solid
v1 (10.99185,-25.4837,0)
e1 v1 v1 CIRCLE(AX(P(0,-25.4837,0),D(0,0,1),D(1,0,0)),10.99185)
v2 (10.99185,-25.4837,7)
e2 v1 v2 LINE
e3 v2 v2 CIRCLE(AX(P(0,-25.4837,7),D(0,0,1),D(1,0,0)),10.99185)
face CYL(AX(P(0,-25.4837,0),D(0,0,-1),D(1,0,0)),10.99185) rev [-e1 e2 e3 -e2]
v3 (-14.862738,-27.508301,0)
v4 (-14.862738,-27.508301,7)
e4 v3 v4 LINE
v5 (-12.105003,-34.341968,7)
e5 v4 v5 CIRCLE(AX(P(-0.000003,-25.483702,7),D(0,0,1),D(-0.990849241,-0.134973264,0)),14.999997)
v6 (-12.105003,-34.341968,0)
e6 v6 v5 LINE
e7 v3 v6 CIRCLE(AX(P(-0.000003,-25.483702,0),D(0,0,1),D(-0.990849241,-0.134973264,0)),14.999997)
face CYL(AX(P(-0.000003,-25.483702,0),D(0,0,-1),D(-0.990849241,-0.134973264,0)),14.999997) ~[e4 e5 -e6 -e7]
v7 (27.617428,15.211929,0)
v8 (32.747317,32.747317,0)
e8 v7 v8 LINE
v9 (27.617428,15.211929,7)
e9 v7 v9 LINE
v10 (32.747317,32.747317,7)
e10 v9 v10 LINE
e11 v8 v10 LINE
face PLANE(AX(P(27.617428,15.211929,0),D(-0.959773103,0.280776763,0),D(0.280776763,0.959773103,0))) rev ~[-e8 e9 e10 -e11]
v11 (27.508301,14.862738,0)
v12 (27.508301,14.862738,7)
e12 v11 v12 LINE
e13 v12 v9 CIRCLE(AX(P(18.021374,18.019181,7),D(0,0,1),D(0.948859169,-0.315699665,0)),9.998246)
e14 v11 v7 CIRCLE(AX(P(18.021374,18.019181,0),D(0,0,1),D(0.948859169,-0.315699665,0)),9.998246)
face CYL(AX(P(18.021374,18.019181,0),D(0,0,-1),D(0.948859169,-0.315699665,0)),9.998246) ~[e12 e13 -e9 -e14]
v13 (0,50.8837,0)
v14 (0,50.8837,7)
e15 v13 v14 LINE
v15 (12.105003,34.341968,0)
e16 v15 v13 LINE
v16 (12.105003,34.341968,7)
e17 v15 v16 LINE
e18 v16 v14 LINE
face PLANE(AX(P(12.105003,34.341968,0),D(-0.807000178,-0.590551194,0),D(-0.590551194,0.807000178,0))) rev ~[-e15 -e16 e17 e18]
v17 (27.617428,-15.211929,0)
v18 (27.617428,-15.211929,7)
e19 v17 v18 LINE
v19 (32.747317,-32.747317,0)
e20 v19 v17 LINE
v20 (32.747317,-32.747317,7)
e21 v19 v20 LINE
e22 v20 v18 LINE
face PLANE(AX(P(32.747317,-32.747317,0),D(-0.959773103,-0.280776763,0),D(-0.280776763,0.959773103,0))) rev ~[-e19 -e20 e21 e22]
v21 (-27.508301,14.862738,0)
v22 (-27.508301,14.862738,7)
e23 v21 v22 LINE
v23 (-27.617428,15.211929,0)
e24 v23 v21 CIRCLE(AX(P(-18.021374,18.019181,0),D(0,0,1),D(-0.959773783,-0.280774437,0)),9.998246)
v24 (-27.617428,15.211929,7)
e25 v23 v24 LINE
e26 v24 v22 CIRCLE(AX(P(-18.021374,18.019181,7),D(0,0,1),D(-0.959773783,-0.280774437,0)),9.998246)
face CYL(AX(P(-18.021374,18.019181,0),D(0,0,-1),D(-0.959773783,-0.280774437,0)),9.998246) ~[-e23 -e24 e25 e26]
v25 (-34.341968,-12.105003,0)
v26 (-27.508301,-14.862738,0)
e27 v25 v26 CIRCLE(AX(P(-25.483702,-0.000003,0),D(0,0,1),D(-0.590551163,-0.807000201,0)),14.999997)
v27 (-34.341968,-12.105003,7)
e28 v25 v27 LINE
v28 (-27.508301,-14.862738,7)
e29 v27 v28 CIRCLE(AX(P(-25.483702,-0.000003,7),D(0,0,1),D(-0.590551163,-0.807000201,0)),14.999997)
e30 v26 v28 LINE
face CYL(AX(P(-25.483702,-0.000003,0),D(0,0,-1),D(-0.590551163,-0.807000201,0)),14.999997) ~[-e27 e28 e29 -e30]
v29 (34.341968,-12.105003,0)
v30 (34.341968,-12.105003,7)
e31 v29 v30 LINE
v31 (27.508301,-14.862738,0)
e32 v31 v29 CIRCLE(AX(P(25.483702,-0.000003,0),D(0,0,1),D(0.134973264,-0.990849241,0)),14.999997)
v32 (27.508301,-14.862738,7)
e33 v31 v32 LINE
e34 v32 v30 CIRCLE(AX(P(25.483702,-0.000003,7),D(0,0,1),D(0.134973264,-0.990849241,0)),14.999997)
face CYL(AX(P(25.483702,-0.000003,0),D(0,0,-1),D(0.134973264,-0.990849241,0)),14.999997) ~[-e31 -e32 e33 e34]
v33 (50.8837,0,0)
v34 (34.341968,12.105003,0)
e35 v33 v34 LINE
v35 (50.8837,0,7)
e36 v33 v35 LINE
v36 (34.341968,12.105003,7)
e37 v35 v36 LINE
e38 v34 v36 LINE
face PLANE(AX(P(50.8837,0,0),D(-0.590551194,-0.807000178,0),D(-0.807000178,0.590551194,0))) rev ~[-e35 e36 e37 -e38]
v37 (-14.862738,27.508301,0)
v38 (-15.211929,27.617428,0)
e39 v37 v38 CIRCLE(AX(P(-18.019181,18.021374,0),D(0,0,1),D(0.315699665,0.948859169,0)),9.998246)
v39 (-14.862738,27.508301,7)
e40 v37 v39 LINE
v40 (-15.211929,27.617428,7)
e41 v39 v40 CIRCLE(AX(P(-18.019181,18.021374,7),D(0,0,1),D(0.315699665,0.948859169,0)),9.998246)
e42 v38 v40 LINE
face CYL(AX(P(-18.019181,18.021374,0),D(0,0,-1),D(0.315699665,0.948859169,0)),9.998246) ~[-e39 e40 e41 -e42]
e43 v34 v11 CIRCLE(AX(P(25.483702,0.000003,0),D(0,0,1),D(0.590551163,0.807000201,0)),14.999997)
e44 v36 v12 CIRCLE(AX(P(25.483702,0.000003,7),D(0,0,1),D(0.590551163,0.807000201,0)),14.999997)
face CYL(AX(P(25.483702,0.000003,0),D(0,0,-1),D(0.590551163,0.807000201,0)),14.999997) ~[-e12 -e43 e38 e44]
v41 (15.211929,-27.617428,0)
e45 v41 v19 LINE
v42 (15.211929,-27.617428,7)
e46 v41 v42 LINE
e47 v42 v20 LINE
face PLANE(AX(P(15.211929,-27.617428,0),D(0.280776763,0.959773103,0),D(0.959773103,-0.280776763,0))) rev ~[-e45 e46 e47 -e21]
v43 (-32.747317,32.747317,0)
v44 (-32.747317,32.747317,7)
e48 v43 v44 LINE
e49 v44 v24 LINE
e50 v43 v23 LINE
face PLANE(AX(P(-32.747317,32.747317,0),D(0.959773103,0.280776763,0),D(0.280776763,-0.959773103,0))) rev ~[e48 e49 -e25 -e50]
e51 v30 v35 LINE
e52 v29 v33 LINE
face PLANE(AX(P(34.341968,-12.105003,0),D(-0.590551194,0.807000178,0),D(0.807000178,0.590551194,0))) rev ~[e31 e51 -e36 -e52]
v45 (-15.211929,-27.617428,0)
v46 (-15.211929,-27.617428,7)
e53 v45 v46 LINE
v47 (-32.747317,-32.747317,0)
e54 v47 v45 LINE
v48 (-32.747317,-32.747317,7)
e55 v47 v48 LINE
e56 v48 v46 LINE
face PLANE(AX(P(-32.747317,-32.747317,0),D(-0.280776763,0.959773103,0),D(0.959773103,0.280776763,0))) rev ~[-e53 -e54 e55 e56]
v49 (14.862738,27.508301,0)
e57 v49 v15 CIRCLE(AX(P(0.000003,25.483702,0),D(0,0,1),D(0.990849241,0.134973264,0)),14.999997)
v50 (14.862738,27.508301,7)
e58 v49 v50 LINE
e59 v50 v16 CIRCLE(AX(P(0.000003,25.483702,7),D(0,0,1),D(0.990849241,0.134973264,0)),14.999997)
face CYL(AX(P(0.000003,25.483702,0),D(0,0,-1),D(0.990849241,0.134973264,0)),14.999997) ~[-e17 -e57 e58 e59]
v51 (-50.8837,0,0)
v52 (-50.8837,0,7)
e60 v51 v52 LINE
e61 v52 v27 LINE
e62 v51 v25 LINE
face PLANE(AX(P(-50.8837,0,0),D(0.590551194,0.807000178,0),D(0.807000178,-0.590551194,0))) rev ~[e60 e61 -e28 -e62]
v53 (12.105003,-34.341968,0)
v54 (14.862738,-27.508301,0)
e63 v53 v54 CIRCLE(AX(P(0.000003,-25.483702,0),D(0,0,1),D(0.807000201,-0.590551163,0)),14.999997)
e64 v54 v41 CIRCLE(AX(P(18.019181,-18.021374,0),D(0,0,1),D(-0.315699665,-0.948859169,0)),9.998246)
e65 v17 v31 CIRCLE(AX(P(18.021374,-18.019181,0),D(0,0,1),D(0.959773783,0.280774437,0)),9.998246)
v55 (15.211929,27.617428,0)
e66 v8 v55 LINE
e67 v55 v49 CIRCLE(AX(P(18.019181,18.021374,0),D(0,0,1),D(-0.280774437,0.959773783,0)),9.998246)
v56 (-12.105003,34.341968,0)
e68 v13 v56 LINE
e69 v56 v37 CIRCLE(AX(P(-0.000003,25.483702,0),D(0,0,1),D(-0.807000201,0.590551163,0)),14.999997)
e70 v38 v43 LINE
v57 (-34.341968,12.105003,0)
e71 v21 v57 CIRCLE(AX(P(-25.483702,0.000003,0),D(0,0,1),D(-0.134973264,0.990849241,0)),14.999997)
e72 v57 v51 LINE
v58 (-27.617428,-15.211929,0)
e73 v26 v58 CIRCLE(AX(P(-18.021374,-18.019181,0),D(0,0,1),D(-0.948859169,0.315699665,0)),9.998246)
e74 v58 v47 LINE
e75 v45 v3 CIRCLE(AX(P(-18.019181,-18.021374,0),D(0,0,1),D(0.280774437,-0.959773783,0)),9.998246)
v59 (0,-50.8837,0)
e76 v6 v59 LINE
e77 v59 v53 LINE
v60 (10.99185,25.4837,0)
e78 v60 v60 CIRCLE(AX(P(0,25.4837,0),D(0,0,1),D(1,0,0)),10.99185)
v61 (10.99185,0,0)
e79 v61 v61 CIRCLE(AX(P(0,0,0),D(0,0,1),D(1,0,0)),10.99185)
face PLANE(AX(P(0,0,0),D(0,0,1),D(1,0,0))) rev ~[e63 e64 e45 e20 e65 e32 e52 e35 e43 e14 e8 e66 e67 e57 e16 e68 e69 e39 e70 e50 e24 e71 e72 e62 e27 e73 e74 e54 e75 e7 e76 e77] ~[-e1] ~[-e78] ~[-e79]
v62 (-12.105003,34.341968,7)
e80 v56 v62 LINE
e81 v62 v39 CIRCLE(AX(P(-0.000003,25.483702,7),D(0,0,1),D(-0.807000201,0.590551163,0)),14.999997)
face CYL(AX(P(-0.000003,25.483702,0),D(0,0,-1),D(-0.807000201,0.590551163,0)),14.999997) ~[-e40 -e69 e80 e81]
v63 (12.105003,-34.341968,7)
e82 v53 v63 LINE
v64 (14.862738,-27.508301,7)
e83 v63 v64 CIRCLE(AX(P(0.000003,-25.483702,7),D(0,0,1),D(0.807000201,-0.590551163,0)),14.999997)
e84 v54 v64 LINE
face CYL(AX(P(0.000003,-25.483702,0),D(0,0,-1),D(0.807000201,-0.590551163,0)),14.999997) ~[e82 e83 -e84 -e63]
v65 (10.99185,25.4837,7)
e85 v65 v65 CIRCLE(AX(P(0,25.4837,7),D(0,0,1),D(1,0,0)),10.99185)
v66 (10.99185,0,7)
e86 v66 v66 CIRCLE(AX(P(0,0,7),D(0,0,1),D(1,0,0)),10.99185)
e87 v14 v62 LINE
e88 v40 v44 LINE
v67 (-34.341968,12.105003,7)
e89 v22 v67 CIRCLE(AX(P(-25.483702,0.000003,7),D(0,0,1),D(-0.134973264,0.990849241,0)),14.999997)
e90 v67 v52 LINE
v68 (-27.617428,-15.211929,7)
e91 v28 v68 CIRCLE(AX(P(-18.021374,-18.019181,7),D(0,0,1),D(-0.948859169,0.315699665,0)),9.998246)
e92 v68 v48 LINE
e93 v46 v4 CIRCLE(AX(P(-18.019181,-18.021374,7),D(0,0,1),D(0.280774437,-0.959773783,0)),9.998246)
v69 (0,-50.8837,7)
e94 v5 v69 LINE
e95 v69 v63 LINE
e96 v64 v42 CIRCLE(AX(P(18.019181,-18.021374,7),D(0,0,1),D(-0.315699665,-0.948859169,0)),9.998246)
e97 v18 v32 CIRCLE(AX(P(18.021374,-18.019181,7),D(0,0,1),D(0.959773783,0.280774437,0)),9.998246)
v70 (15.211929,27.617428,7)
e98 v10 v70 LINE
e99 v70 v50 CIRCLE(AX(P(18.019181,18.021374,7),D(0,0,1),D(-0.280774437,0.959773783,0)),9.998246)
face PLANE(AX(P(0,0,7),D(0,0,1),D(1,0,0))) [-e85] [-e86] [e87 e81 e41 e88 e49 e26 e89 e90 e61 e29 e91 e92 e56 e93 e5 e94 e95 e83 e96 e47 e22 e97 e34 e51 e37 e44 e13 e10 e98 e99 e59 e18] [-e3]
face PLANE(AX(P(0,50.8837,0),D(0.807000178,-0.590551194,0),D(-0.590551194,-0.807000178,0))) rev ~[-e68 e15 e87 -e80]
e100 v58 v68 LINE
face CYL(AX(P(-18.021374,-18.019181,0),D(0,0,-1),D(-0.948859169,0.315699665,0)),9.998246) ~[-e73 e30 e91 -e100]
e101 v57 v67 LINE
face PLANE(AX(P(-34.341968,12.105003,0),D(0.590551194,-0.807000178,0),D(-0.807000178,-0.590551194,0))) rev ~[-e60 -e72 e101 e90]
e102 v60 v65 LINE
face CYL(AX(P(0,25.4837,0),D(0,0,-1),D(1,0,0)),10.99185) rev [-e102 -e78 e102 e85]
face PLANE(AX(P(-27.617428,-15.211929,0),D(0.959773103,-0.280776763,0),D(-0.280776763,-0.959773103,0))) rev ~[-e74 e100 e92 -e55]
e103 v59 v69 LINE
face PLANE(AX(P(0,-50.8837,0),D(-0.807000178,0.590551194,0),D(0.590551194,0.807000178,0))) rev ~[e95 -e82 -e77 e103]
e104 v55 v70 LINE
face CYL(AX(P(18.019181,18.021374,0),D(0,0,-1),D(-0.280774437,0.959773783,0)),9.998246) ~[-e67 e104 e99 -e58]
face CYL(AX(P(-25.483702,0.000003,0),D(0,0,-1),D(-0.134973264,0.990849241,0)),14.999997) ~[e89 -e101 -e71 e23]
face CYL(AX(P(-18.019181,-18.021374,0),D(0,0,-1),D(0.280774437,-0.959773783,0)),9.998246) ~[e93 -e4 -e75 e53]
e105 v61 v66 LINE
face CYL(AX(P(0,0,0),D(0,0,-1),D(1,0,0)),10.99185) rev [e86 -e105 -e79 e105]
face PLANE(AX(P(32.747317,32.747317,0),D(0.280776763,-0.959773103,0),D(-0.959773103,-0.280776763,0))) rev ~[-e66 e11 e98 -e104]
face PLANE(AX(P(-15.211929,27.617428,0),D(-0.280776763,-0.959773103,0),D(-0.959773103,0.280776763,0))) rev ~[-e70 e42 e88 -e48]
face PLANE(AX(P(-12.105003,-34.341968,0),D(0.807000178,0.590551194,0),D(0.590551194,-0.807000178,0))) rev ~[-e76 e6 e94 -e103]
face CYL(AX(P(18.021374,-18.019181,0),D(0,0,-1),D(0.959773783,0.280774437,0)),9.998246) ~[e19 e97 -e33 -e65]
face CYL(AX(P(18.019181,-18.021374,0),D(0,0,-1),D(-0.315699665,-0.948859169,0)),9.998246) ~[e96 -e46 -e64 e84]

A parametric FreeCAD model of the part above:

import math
import FreeCAD as App
import Part
import Sketcher
from FreeCAD import Vector

doc = App.newDocument("Part")
params = doc.addObject("Spreadsheet::Sheet", "Params")
for row, (alias, value) in enumerate([
    ("pad1_length", "7 mm"),
], start=1):
    params.set(f"A{row}", alias)
    params.set(f"B{row}", "=" + value)
    params.setAlias(f"B{row}", alias)

body = doc.addObject("PartDesign::Body", "Body")

# Sketch on XY plane
sketch1 = doc.addObject("Sketcher::SketchObject", "Sketch")
body.addObject(sketch1)
sketch1.AttachmentSupport = (doc.XY_Plane, [""])
sketch1.MapMode = "FlatFace"
sketch1.addGeometry(Part.ArcOfCircle(Part.Circle(Vector(18.019181, 18.021374, 0), Vector(0, 0, 1), 9.998246), math.radians(106.306431), math.radians(108.403057)), False)
sketch1.addGeometry(Part.ArcOfCircle(Part.Circle(Vector(0.000003, 25.483702, 0), Vector(0, 0, 1), 14.999997), math.radians(7.757074), math.radians(36.19613)), False)
sketch1.addGeometry(Part.LineSegment(Vector(12.105003, 34.341968, 0), Vector(0, 50.8837, 0)), False)
sketch1.addGeometry(Part.LineSegment(Vector(0, 50.8837, 0), Vector(-12.105003, 34.341968, 0)), False)
sketch1.addGeometry(Part.ArcOfCircle(Part.Circle(Vector(-0.000003, 25.483702, 0), Vector(0, 0, 1), 14.999997), math.radians(143.80387), math.radians(172.242926)), False)
sketch1.addGeometry(Part.ArcOfCircle(Part.Circle(Vector(-18.019181, 18.021374, 0), Vector(0, 0, 1), 9.998246), math.radians(71.596943), math.radians(73.693569)), False)
sketch1.addGeometry(Part.LineSegment(Vector(-15.211929, 27.617428, 0), Vector(-32.747317, 32.747317, 0)), False)
sketch1.addGeometry(Part.LineSegment(Vector(-32.747317, 32.747317, 0), Vector(-27.617428, 15.211929, 0)), False)
sketch1.addGeometry(Part.ArcOfCircle(Part.Circle(Vector(-18.021374, 18.019181, 0), Vector(0, 0, 1), 9.998246), math.radians(-163.693569), math.radians(-161.596943)), False)
sketch1.addGeometry(Part.ArcOfCircle(Part.Circle(Vector(-25.483702, 0.000003, 0), Vector(0, 0, 1), 14.999997), math.radians(97.757074), math.radians(126.19613)), False)
sketch1.addGeometry(Part.LineSegment(Vector(-34.341968, 12.105003, 0), Vector(-50.8837, 0, 0)), False)
sketch1.addGeometry(Part.LineSegment(Vector(-50.8837, 0, 0), Vector(-34.341968, -12.105003, 0)), False)
sketch1.addGeometry(Part.ArcOfCircle(Part.Circle(Vector(-25.483702, -0.000003, 0), Vector(0, 0, 1), 14.999997), math.radians(-126.19613), math.radians(-97.757074)), False)
sketch1.addGeometry(Part.ArcOfCircle(Part.Circle(Vector(-18.021374, -18.019181, 0), Vector(0, 0, 1), 9.998246), math.radians(161.596943), math.radians(163.693569)), False)
sketch1.addGeometry(Part.LineSegment(Vector(-27.617428, -15.211929, 0), Vector(-32.747317, -32.747317, 0)), False)
sketch1.addGeometry(Part.LineSegment(Vector(-32.747317, -32.747317, 0), Vector(-15.211929, -27.617428, 0)), False)
sketch1.addGeometry(Part.ArcOfCircle(Part.Circle(Vector(-18.019181, -18.021374, 0), Vector(0, 0, 1), 9.998246), math.radians(-73.693569), math.radians(-71.596943)), False)
sketch1.addGeometry(Part.ArcOfCircle(Part.Circle(Vector(-0.000003, -25.483702, 0), Vector(0, 0, 1), 14.999997), math.radians(-172.242926), math.radians(-143.80387)), False)
sketch1.addGeometry(Part.LineSegment(Vector(-12.105003, -34.341968, 0), Vector(0, -50.8837, 0)), False)
sketch1.addGeometry(Part.LineSegment(Vector(0, -50.8837, 0), Vector(12.105003, -34.341968, 0)), False)
sketch1.addGeometry(Part.ArcOfCircle(Part.Circle(Vector(0.000003, -25.483702, 0), Vector(0, 0, 1), 14.999997), math.radians(-36.19613), math.radians(-7.757074)), False)
sketch1.addGeometry(Part.ArcOfCircle(Part.Circle(Vector(18.019181, -18.021374, 0), Vector(0, 0, 1), 9.998246), math.radians(-108.403057), math.radians(-106.306431)), False)
sketch1.addGeometry(Part.LineSegment(Vector(15.211929, -27.617428, 0), Vector(32.747317, -32.747317, 0)), False)
sketch1.addGeometry(Part.LineSegment(Vector(32.747317, -32.747317, 0), Vector(27.617428, -15.211929, 0)), False)
sketch1.addGeometry(Part.ArcOfCircle(Part.Circle(Vector(18.021374, -18.019181, 0), Vector(0, 0, 1), 9.998246), math.radians(16.306431), math.radians(18.403057)), False)
sketch1.addGeometry(Part.ArcOfCircle(Part.Circle(Vector(25.483702, -0.000003, 0), Vector(0, 0, 1), 14.999997), math.radians(-82.242926), math.radians(-53.80387)), False)
sketch1.addGeometry(Part.LineSegment(Vector(34.341968, -12.105003, 0), Vector(50.8837, 0, 0)), False)
sketch1.addGeometry(Part.LineSegment(Vector(50.8837, 0, 0), Vector(34.341968, 12.105003, 0)), False)
sketch1.addGeometry(Part.ArcOfCircle(Part.Circle(Vector(25.483702, 0.000003, 0), Vector(0, 0, 1), 14.999997), math.radians(53.80387), math.radians(82.242926)), False)
sketch1.addGeometry(Part.ArcOfCircle(Part.Circle(Vector(18.021374, 18.019181, 0), Vector(0, 0, 1), 9.998246), math.radians(-18.403057), math.radians(-16.306431)), False)
sketch1.addGeometry(Part.LineSegment(Vector(27.617428, 15.211929, 0), Vector(32.747317, 32.747317, 0)), False)
sketch1.addGeometry(Part.LineSegment(Vector(32.747317, 32.747317, 0), Vector(15.211929, 27.617428, 0)), False)
sketch1.addGeometry(Part.Circle(Vector(0, -25.4837, 0), Vector(0, 0, 1), 10.99185), False)
sketch1.addGeometry(Part.Circle(Vector(0, 0, 0), Vector(0, 0, 1), 10.99185), False)
sketch1.addGeometry(Part.Circle(Vector(0, 25.4837, 0), Vector(0, 0, 1), 10.99185), False)
sketch1.addConstraint(Sketcher.Constraint("Coincident", 0, 2, 1, 1))
sketch1.addConstraint(Sketcher.Constraint("Tangent", 1, 2, 2, 1))
sketch1.addConstraint(Sketcher.Constraint("Coincident", 2, 2, 3, 1))
sketch1.addConstraint(Sketcher.Constraint("Tangent", 3, 2, 4, 1))
sketch1.addConstraint(Sketcher.Constraint("Coincident", 4, 2, 5, 1))
sketch1.addConstraint(Sketcher.Constraint("Coincident", 5, 2, 6, 1))
sketch1.addConstraint(Sketcher.Constraint("Coincident", 6, 2, 7, 1))
sketch1.addConstraint(Sketcher.Constraint("Coincident", 7, 2, 8, 1))
sketch1.addConstraint(Sketcher.Constraint("Coincident", 8, 2, 9, 1))
sketch1.addConstraint(Sketcher.Constraint("Tangent", 9, 2, 10, 1))
sketch1.addConstraint(Sketcher.Constraint("Coincident", 10, 2, 11, 1))
sketch1.addConstraint(Sketcher.Constraint("Tangent", 11, 2, 12, 1))
sketch1.addConstraint(Sketcher.Constraint("Coincident", 12, 2, 13, 1))
sketch1.addConstraint(Sketcher.Constraint("Coincident", 13, 2, 14, 1))
sketch1.addConstraint(Sketcher.Constraint("Coincident", 14, 2, 15, 1))
sketch1.addConstraint(Sketcher.Constraint("Coincident", 15, 2, 16, 1))
sketch1.addConstraint(Sketcher.Constraint("Coincident", 16, 2, 17, 1))
sketch1.addConstraint(Sketcher.Constraint("Tangent", 17, 2, 18, 1))
sketch1.addConstraint(Sketcher.Constraint("Coincident", 18, 2, 19, 1))
sketch1.addConstraint(Sketcher.Constraint("Tangent", 19, 2, 20, 1))
sketch1.addConstraint(Sketcher.Constraint("Coincident", 20, 2, 21, 1))
sketch1.addConstraint(Sketcher.Constraint("Coincident", 21, 2, 22, 1))
sketch1.addConstraint(Sketcher.Constraint("Coincident", 22, 2, 23, 1))
sketch1.addConstraint(Sketcher.Constraint("Coincident", 23, 2, 24, 1))
sketch1.addConstraint(Sketcher.Constraint("Coincident", 24, 2, 25, 1))
sketch1.addConstraint(Sketcher.Constraint("Tangent", 25, 2, 26, 1))
sketch1.addConstraint(Sketcher.Constraint("Coincident", 26, 2, 27, 1))
sketch1.addConstraint(Sketcher.Constraint("Tangent", 27, 2, 28, 1))
sketch1.addConstraint(Sketcher.Constraint("Coincident", 28, 2, 29, 1))
sketch1.addConstraint(Sketcher.Constraint("Coincident", 29, 2, 30, 1))
sketch1.addConstraint(Sketcher.Constraint("Coincident", 30, 2, 31, 1))
sketch1.addConstraint(Sketcher.Constraint("Coincident", 31, 2, 0, 1))
sketch1.addConstraint(Sketcher.Constraint("Coincident", 33, 3, -1, 1))
sketch1.addConstraint(Sketcher.Constraint("Coincident", 4, 3, 1, 3))
sketch1.addConstraint(Sketcher.Constraint("Coincident", 12, 3, 9, 3))
sketch1.addConstraint(Sketcher.Constraint("Coincident", 20, 3, 17, 3))
sketch1.addConstraint(Sketcher.Constraint("Coincident", 28, 3, 25, 3))
sketch1.addConstraint(Sketcher.Constraint("Coincident", 32, 3, 17, 3))
sketch1.addConstraint(Sketcher.Constraint("Coincident", 34, 3, 1, 3))
sketch1.addConstraint(Sketcher.Constraint("Equal", 1, 4))
sketch1.addConstraint(Sketcher.Constraint("Equal", 0, 5))
sketch1.addConstraint(Sketcher.Constraint("Equal", 5, 8))
sketch1.addConstraint(Sketcher.Constraint("Equal", 4, 9))
sketch1.addConstraint(Sketcher.Constraint("Equal", 9, 12))
sketch1.addConstraint(Sketcher.Constraint("Equal", 8, 13))
sketch1.addConstraint(Sketcher.Constraint("Equal", 13, 16))
sketch1.addConstraint(Sketcher.Constraint("Equal", 12, 17))
sketch1.addConstraint(Sketcher.Constraint("Equal", 17, 20))
sketch1.addConstraint(Sketcher.Constraint("Equal", 16, 21))
sketch1.addConstraint(Sketcher.Constraint("Equal", 21, 24))
sketch1.addConstraint(Sketcher.Constraint("Equal", 20, 25))
sketch1.addConstraint(Sketcher.Constraint("Equal", 25, 28))
sketch1.addConstraint(Sketcher.Constraint("Equal", 24, 29))
sketch1.addConstraint(Sketcher.Constraint("Equal", 32, 33))
sketch1.addConstraint(Sketcher.Constraint("Equal", 33, 34))
sketch1.addConstraint(Sketcher.Constraint("Symmetric", 0, 3, 16, 3, -1, 1))
sketch1.addConstraint(Sketcher.Constraint("Symmetric", 1, 3, 17, 3, -1, 1))
sketch1.addConstraint(Sketcher.Constraint("Symmetric", 5, 3, 21, 3, -1, 1))
sketch1.addConstraint(Sketcher.Constraint("Symmetric", 8, 3, 24, 3, -1, 1))
sketch1.addConstraint(Sketcher.Constraint("Symmetric", 9, 3, 25, 3, -1, 1))
sketch1.addConstraint(Sketcher.Constraint("Symmetric", 13, 3, 29, 3, -1, 1))
sketch1.addConstraint(Sketcher.Constraint("Symmetric", 2, 2, 18, 2, -1, 1))
sketch1.addConstraint(Sketcher.Constraint("Symmetric", 6, 2, 22, 2, -1, 1))
sketch1.addConstraint(Sketcher.Constraint("Symmetric", 10, 2, 26, 2, -1, 1))
sketch1.addConstraint(Sketcher.Constraint("Symmetric", 14, 2, 30, 2, -1, 1))
sketch1.addConstraint(Sketcher.Constraint("Symmetric", 0, 3, 5, 3, -2))
sketch1.addConstraint(Sketcher.Constraint("Symmetric", 13, 3, 24, 3, -2))
sketch1.addConstraint(Sketcher.Constraint("Symmetric", 1, 2, 3, 2, -2))
sketch1.addConstraint(Sketcher.Constraint("Symmetric", 14, 2, 22, 2, -2))
sketch1.addConstraint(Sketcher.Constraint("Symmetric", 11, 2, 25, 2, -2))
sketch1.addConstraint(Sketcher.Constraint("Perpendicular", 2, 10))
sketch1.addConstraint(Sketcher.Constraint("Perpendicular", 6, 14))
sketch1.addConstraint(Sketcher.Constraint("Horizontal", 15, 2, 21, 2))
sketch1.addConstraint(Sketcher.Constraint("Horizontal", 13, 2, 23, 2))
sketch1.addConstraint(Sketcher.Constraint("Horizontal", 7, 2, 29, 2))
sketch1.addConstraint(Sketcher.Constraint("Horizontal", 5, 2, 31, 2))
sketch1.addConstraint(Sketcher.Constraint("Vertical", 7, 2, 13, 2))
sketch1.addConstraint(Sketcher.Constraint("Vertical", 5, 2, 15, 2))
sketch1.addConstraint(Sketcher.Constraint("Equal", 6, 7))
sketch1.addConstraint(Sketcher.Constraint("Diameter", 32, 21.9837))
sketch1.addConstraint(Sketcher.Constraint("DistanceY", 34, 3, 2, 2, 25.4))
sketch1.addConstraint(Sketcher.Constraint("Radius", 0, 9.998246))
sketch1.addConstraint(Sketcher.Constraint("Radius", 1, 14.999997))
sketch1.addConstraint(Sketcher.Constraint("DistanceY", 32, 3, -1, 1, 25.4837))
sketch1.addConstraint(Sketcher.Constraint("DistanceY", -1, 1, 0, 2, 27.508301))
sketch1.addConstraint(Sketcher.Constraint("DistanceX", 8, 2, -1, 1, 27.508301))
sketch1.addConstraint(Sketcher.Constraint("DistanceX", 10, 2, -1, 1, 50.8837))
sketch1.addConstraint(Sketcher.Constraint("DistanceX", 7, 2, 5, 2, 12.405499))
sketch1.addConstraint(Sketcher.Constraint("DistanceX", -1, 1, 0, 3, 18.019181))
sketch1.addConstraint(Sketcher.Constraint("DistanceY", -1, 1, 8, 3, 18.019181))
sketch1.addConstraint(Sketcher.Constraint("DistanceY", 5, 2, 6, 2, 5.129889))
pad1 = doc.addObject("PartDesign::Pad", "Pad")
body.addObject(pad1)
pad1.Profile = sketch1
pad1.setExpression("Length", "Params.pad1_length")

doc.recompute()
